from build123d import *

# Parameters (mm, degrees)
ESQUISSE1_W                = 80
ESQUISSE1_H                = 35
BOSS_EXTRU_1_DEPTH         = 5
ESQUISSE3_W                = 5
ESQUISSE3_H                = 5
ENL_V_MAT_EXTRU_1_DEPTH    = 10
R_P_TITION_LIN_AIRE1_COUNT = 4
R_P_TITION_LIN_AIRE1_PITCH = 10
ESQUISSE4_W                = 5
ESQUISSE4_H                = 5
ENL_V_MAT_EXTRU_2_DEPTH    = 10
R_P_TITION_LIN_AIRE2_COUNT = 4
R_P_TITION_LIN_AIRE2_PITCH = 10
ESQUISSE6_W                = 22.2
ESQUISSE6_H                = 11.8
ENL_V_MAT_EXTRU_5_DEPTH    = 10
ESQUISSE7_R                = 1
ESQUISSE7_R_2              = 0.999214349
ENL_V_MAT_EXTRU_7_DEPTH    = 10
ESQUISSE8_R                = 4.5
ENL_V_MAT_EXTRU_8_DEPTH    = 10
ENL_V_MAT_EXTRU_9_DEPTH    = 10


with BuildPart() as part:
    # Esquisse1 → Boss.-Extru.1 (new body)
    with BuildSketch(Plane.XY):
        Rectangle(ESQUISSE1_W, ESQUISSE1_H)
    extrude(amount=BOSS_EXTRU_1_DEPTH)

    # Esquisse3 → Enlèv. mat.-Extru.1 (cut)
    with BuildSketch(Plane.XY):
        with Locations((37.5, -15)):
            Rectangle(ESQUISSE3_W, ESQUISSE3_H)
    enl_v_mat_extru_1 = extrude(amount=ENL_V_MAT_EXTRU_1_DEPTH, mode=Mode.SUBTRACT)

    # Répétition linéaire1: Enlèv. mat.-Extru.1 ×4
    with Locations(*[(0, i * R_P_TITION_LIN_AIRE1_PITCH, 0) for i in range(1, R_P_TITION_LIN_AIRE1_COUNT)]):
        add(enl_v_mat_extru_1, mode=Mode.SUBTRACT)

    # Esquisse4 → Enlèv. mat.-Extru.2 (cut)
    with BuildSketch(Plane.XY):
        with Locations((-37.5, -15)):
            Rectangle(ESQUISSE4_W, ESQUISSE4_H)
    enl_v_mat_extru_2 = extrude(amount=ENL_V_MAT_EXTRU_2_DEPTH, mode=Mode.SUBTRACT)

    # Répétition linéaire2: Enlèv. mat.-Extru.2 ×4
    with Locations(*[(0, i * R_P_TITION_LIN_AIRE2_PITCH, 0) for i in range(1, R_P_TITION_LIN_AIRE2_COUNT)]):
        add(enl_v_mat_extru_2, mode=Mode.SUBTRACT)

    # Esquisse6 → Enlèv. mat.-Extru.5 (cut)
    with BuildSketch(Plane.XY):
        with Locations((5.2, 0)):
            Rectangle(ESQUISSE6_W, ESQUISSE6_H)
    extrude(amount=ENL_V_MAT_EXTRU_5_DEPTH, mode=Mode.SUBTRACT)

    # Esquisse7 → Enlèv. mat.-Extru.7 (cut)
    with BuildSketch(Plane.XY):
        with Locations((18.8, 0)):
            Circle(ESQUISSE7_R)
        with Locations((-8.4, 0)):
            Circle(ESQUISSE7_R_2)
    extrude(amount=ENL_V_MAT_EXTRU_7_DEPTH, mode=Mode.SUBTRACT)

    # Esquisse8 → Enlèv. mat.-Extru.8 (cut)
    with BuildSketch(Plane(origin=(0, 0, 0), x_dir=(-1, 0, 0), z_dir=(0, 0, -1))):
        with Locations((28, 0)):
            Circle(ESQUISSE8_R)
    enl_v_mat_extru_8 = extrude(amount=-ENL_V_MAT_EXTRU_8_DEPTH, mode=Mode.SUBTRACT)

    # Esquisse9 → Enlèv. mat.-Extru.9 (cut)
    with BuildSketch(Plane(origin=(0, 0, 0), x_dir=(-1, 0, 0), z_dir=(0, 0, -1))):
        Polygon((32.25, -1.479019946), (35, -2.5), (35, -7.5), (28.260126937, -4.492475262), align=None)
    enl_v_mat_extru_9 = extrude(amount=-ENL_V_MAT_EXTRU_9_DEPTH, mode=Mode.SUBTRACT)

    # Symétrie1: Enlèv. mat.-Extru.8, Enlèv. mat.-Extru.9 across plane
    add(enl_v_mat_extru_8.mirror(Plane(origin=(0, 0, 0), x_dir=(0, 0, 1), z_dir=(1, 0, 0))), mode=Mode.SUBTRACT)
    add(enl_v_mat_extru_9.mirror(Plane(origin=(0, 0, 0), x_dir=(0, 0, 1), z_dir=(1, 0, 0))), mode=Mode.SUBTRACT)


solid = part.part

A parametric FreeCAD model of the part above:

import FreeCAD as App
import Part
import Sketcher

V = App.Vector
Q = App.Units.Quantity

doc = App.newDocument("Part")
params = doc.addObject("Spreadsheet::Sheet", "Params")
for row, (alias, value) in enumerate([
    ("sketch1_width", "80 mm"),
    ("sketch1_height", "35 mm"),
    ("pad1_length", "5 mm"),
    ("sketch2_width", "5 mm"),
    ("pocket1_length", "10 mm"),
    ("linearpattern_pitch", "10 mm"),
    ("sketch3_width", "5 mm"),
    ("pocket2_length", "10 mm"),
    ("linearpattern2_pitch", "10 mm"),
    ("sketch4_width", "22.2 mm"),
    ("sketch4_height", "11.8 mm"),
    ("pocket3_length", "10 mm"),
    ("sketch5_diameter", "2 mm"),
    ("pocket4_length", "10 mm"),
    ("sketch6_diameter", "9 mm"),
    ("pocket5_length", "10 mm"),
    ("sketch7_height", "5 mm"),
    ("sketch7_length", "5 mm"),
    ("pocket6_length", "10 mm"),
], start=1):
    params.set(f"A{row}", alias)
    params.set(f"B{row}", "=" + value)
    params.setAlias(f"B{row}", alias)

body = doc.addObject("PartDesign::Body", "Body")

# Sketch on XY plane
sketch1 = body.newObject("Sketcher::SketchObject", "Sketch")
sketch1.AttachmentSupport = (doc.getObject("XY_Plane"), [""])
sketch1.MapMode = "FlatFace"
sketch1.addGeometry([
    Part.LineSegment(V(-40, 18, 0), V(-40, -18, 0)),
    Part.LineSegment(V(-40, -18, 0), V(40, -18, 0)),
    Part.LineSegment(V(40, -18, 0), V(40, 18, 0)),
    Part.LineSegment(V(40, 18, 0), V(-40, 18, 0)),
], False)
sketch1.addConstraint([
    Sketcher.Constraint("Coincident", 0, 2, 1, 1),
    Sketcher.Constraint("Coincident", 1, 2, 2, 1),
    Sketcher.Constraint("Coincident", 2, 2, 3, 1),
    Sketcher.Constraint("Coincident", 3, 2, 0, 1),
    Sketcher.Constraint("Vertical", 0),
    Sketcher.Constraint("Horizontal", 1),
    Sketcher.Constraint("Vertical", 2),
    Sketcher.Constraint("Horizontal", 3),
    Sketcher.Constraint("Symmetric", 0, 2, 2, 2, -1, 1),
    Sketcher.Constraint("DistanceX", 1, 1, 1, 2, Q("80 mm")),
    Sketcher.Constraint("DistanceY", 0, 2, 0, 1, Q("35 mm")),
])
sketch1.setExpression("Constraints[9]", "Params.sketch1_width")
sketch1.setExpression("Constraints[10]", "Params.sketch1_height")
pad1 = body.newObject("PartDesign::Pad", "Pad")
pad1.Profile = sketch1
pad1.setExpression("Length", "Params.pad1_length")

# Sketch on XY plane
sketch2 = body.newObject("Sketcher::SketchObject", "Sketch001")
sketch2.AttachmentSupport = (doc.getObject("XY_Plane"), [""])
sketch2.MapMode = "FlatFace"
sketch2.addGeometry([
    Part.LineSegment(V(35, -12, 0), V(35, -18, 0)),
    Part.LineSegment(V(35, -18, 0), V(40, -18, 0)),
    Part.LineSegment(V(40, -18, 0), V(40, -12, 0)),
    Part.LineSegment(V(40, -12, 0), V(35, -12, 0)),
], False)
sketch2.addConstraint([
    Sketcher.Constraint("Coincident", 0, 2, 1, 1),
    Sketcher.Constraint("Coincident", 1, 2, 2, 1),
    Sketcher.Constraint("Coincident", 2, 2, 3, 1),
    Sketcher.Constraint("Coincident", 3, 2, 0, 1),
    Sketcher.Constraint("Vertical", 0),
    Sketcher.Constraint("Horizontal", 1),
    Sketcher.Constraint("Vertical", 2),
    Sketcher.Constraint("Horizontal", 3),
    Sketcher.Constraint("Equal", 3, 0),
    Sketcher.Constraint("DistanceX", 1, 1, 1, 2, Q("5 mm")),
    Sketcher.Constraint("DistanceX", -1, 1, 0, 2, Q("35 mm")),
    Sketcher.Constraint("DistanceY", 0, 2, -1, 1, Q("17.5 mm")),
])
sketch2.setExpression("Constraints[9]", "Params.sketch2_width")
pocket1 = body.newObject("PartDesign::Pocket", "Pocket")
pocket1.Profile = sketch2
pocket1.setExpression("Length", "Params.pocket1_length")
pocket1.Reversed = True
doc.recompute()

linearpattern = body.newObject("PartDesign::LinearPattern", "LinearPattern")
linearpattern.Originals = [pocket1]
linearpattern.Direction = (doc.getObject("Y_Axis"), [""])
linearpattern.Mode = "offset"
linearpattern.setExpression("Offset", "Params.linearpattern_pitch")
linearpattern.Occurrences = 4
body.Tip = linearpattern

# Sketch on XY plane
sketch3 = body.newObject("Sketcher::SketchObject", "Sketch002")
sketch3.AttachmentSupport = (doc.getObject("XY_Plane"), [""])
sketch3.MapMode = "FlatFace"
sketch3.addGeometry([
    Part.LineSegment(V(-40, -12, 0), V(-40, -18, 0)),
    Part.LineSegment(V(-40, -18, 0), V(-35, -18, 0)),
    Part.LineSegment(V(-35, -18, 0), V(-35, -12, 0)),
    Part.LineSegment(V(-35, -12, 0), V(-40, -12, 0)),
], False)
sketch3.addConstraint([
    Sketcher.Constraint("Coincident", 0, 2, 1, 1),
    Sketcher.Constraint("Coincident", 1, 2, 2, 1),
    Sketcher.Constraint("Coincident", 2, 2, 3, 1),
    Sketcher.Constraint("Coincident", 3, 2, 0, 1),
    Sketcher.Constraint("Vertical", 0),
    Sketcher.Constraint("Horizontal", 1),
    Sketcher.Constraint("Vertical", 2),
    Sketcher.Constraint("Horizontal", 3),
    Sketcher.Constraint("Equal", 3, 0),
    Sketcher.Constraint("DistanceX", 1, 1, 1, 2, Q("5 mm")),
    Sketcher.Constraint("DistanceX", 0, 2, -1, 1, Q("40 mm")),
    Sketcher.Constraint("DistanceY", 0, 2, -1, 1, Q("17.5 mm")),
])
sketch3.setExpression("Constraints[9]", "Params.sketch3_width")
pocket2 = body.newObject("PartDesign::Pocket", "Pocket001")
pocket2.Profile = sketch3
pocket2.setExpression("Length", "Params.pocket2_length")
pocket2.Reversed = True
doc.recompute()

linearpattern2 = body.newObject("PartDesign::LinearPattern", "LinearPattern001")
linearpattern2.Originals = [pocket2]
linearpattern2.Direction = (doc.getObject("Y_Axis"), [""])
linearpattern2.Mode = "offset"
linearpattern2.setExpression("Offset", "Params.linearpattern2_pitch")
linearpattern2.Occurrences = 4
body.Tip = linearpattern2

# Sketch on XY plane
sketch4 = body.newObject("Sketcher::SketchObject", "Sketch003")
sketch4.AttachmentSupport = (doc.getObject("XY_Plane"), [""])
sketch4.MapMode = "FlatFace"
sketch4.addGeometry([
    Part.LineSegment(V(-6, 6, 0), V(-6, -6, 0)),
    Part.LineSegment(V(-6, -6, 0), V(16, -6, 0)),
    Part.LineSegment(V(16, -6, 0), V(16, 6, 0)),
    Part.LineSegment(V(16, 6, 0), V(-6, 6, 0)),
], False)
sketch4.addConstraint([
    Sketcher.Constraint("Coincident", 0, 2, 1, 1),
    Sketcher.Constraint("Coincident", 1, 2, 2, 1),
    Sketcher.Constraint("Coincident", 2, 2, 3, 1),
    Sketcher.Constraint("Coincident", 3, 2, 0, 1),
    Sketcher.Constraint("Vertical", 0),
    Sketcher.Constraint("Horizontal", 1),
    Sketcher.Constraint("Vertical", 2),
    Sketcher.Constraint("Horizontal", 3),
    Sketcher.Constraint("DistanceX", 1, 1, 1, 2, Q("22.2 mm")),
    Sketcher.Constraint("DistanceY", 0, 2, 0, 1, Q("11.8 mm")),
    Sketcher.Constraint("DistanceX", 0, 2, -1, 1, Q("5.9 mm")),
    Sketcher.Constraint("DistanceY", 0, 2, -1, 1, Q("5.9 mm")),
])
sketch4.setExpression("Constraints[8]", "Params.sketch4_width")
sketch4.setExpression("Constraints[9]", "Params.sketch4_height")
pocket3 = body.newObject("PartDesign::Pocket", "Pocket002")
pocket3.Profile = sketch4
pocket3.setExpression("Length", "Params.pocket3_length")
pocket3.Reversed = True

# Sketch on XY plane
sketch5 = body.newObject("Sketcher::SketchObject", "Sketch004")
sketch5.AttachmentSupport = (doc.getObject("XY_Plane"), [""])
sketch5.MapMode = "FlatFace"
sketch5.addGeometry([
    Part.Circle(V(18.8, 0, 0), V(0, 0, 1), 1),
    Part.Circle(V(-8.4, 0, 0), V(0, 0, 1), 1),
], False)
sketch5.addConstraint([
    Sketcher.Constraint("PointOnObject", 0, 3, -1),
    Sketcher.Constraint("PointOnObject", 1, 3, -1),
    Sketcher.Constraint("Diameter", 0, Q("2 mm")),
    Sketcher.Constraint("DistanceX", -1, 1, 0, 3, Q("18.8 mm")),
    Sketcher.Constraint("DistanceX", 1, 3, -1, 1, Q("8.4 mm")),
    Sketcher.Constraint("Diameter", 1, Q("1.998429 mm")),
])
sketch5.setExpression("Constraints[2]", "Params.sketch5_diameter")
pocket4 = body.newObject("PartDesign::Pocket", "Pocket003")
pocket4.Profile = sketch5
pocket4.setExpression("Length", "Params.pocket4_length")
pocket4.Reversed = True

# Sketch on XY plane
sketch6 = body.newObject("Sketcher::SketchObject", "Sketch005")
sketch6.AttachmentSupport = (doc.getObject("XY_Plane"), [""])
sketch6.MapMode = "FlatFace"
sketch6.addGeometry(Part.Circle(V(-28, 0, 0), V(0, 0, 1), 4.5), False)
sketch6.addConstraint([
    Sketcher.Constraint("PointOnObject", 0, 3, -1),
    Sketcher.Constraint("Diameter", 0, Q("9 mm")),
    Sketcher.Constraint("DistanceX", 0, 3, -1, 1, Q("28 mm")),
])
sketch6.setExpression("Constraints[1]", "Params.sketch6_diameter")
pocket5 = body.newObject("PartDesign::Pocket", "Pocket004")
pocket5.Profile = sketch6
pocket5.setExpression("Length", "Params.pocket5_length")
pocket5.Reversed = True

# Sketch on XY plane
sketch7 = body.newObject("Sketcher::SketchObject", "Sketch006")
sketch7.AttachmentSupport = (doc.getObject("XY_Plane"), [""])
sketch7.MapMode = "FlatFace"
sketch7.addGeometry([
    Part.LineSegment(V(-35, -2.5, 0), V(-32.2, -1.5, 0)),
    Part.LineSegment(V(-32.2, -1.5, 0), V(-28.3, -4.5, 0)),
    Part.LineSegment(V(-28.3, -4.5, 0), V(-35, -7.5, 0)),
    Part.LineSegment(V(-35, -7.5, 0), V(-35, -2.5, 0)),
], False)
sketch7.addConstraint([
    Sketcher.Constraint("Coincident", 0, 2, 1, 1),
    Sketcher.Constraint("Coincident", 1, 2, 2, 1),
    Sketcher.Constraint("Coincident", 2, 2, 3, 1),
    Sketcher.Constraint("Coincident", 3, 2, 0, 1),
    Sketcher.Constraint("Vertical", 3),
    Sketcher.Constraint("DistanceY", 3, 1, 3, 2, Q("5 mm")),
    Sketcher.Constraint("Distance", 1, Q("5 mm")),
    Sketcher.Constraint("DistanceX", 2, 2, -1, 1, Q("35 mm")),
    Sketcher.Constraint("DistanceY", 2, 2, -1, 1, Q("7.5 mm")),
    Sketcher.Constraint("DistanceX", 0, 2, -1, 1, Q("32.25 mm")),
    Sketcher.Constraint("Distance", 0, Q("2.933411 mm")),
    Sketcher.Constraint("Distance", 2, Q("7.380454 mm")),
])
sketch7.setExpression("Constraints[5]", "Params.sketch7_height")
sketch7.setExpression("Constraints[6]", "Params.sketch7_length")
pocket6 = body.newObject("PartDesign::Pocket", "Pocket005")
pocket6.Profile = sketch7
pocket6.setExpression("Length", "Params.pocket6_length")
pocket6.Reversed = True
doc.recompute()

mirrored = body.newObject("PartDesign::Mirrored", "Mirrored")
mirrored.Originals = [pocket5, pocket6]
mirrored.MirrorPlane = (doc.getObject("YZ_Plane"), [""])
body.Tip = mirrored

doc.recompute()
